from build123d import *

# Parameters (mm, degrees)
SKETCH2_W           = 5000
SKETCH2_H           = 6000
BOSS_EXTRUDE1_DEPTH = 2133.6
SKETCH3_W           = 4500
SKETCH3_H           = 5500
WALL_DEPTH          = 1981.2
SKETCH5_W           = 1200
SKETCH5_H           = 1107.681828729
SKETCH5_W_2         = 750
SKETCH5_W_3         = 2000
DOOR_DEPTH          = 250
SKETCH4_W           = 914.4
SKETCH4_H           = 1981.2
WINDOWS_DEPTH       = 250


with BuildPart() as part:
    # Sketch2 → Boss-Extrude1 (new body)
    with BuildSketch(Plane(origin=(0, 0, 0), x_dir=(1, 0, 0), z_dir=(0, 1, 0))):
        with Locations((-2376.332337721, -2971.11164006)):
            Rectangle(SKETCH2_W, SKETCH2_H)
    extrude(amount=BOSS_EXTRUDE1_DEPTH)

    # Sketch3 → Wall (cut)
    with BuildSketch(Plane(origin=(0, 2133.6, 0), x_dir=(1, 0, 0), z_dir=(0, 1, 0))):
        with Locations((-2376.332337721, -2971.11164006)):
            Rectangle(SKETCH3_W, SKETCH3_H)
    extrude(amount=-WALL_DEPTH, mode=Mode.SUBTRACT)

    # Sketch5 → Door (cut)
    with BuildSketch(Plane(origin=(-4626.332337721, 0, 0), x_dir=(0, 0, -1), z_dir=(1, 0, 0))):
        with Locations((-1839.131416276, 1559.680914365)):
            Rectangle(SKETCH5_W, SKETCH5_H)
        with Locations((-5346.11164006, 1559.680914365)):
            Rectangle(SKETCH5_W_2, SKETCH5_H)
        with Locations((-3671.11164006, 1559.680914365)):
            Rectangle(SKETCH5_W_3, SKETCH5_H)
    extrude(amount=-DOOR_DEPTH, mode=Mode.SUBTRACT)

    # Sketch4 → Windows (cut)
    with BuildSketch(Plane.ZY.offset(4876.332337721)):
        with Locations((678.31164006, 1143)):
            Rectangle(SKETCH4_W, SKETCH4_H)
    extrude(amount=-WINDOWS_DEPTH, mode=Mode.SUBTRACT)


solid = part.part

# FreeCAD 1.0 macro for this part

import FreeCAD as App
import Part
import Sketcher
from FreeCAD import Vector
Q = App.Units.Quantity


def add_polygon(sketch, points):
    """Adds a closed chain of lines whose ends are joined by coincident constraints."""
    first, n = sketch.GeometryCount, len(points)
    for a, b in zip(points, points[1:] + points[:1]):
        sketch.addGeometry(Part.LineSegment(App.Vector(*a, 0), App.Vector(*b, 0)), False)
    for i in range(n):
        sketch.addConstraint(Sketcher.Constraint("Coincident", first + i, 2, first + (i + 1) % n, 1))

doc = App.newDocument("Part")
body = doc.addObject("PartDesign::Body", "Body")

sketch1 = doc.addObject("Sketcher::SketchObject", "Sketch")
body.addObject(sketch1)
sketch1.AttachmentSupport = (doc.XZ_Plane, [""])
sketch1.MapMode = "FlatFace"
add_polygon(sketch1, [(-4876, -29), (-4876, 5971), (124, 5971), (124, -29)])
sketch1.addConstraint([
    Sketcher.Constraint("Vertical", 0),
    Sketcher.Constraint("Horizontal", 1),
    Sketcher.Constraint("Vertical", 2),
    Sketcher.Constraint("Horizontal", 3),
    Sketcher.Constraint("DistanceX", 1, 1, 1, 2, Q("5000 mm")),
    Sketcher.Constraint("DistanceY", 0, 1, 0, 2, Q("6000 mm")),
    Sketcher.Constraint("DistanceY", -1, 1, 0, 2, Q("5971.11164 mm")),
    Sketcher.Constraint("DistanceX", 0, 2, -1, 1, Q("4876.332338 mm")),
])
pad1 = doc.addObject("PartDesign::Pad", "Pad")
body.addObject(pad1)
pad1.Profile = sketch1
pad1.Length = 2133.6
pad1.Reversed = True

sketch2 = doc.addObject("Sketcher::SketchObject", "Sketch001")
body.addObject(sketch2)
sketch2.AttachmentSupport = (doc.XZ_Plane, [""])
sketch2.MapMode = "FlatFace"
sketch2.AttachmentOffset = App.Placement(Vector(0, 0, -2133.6), App.Rotation())
add_polygon(sketch2, [(-4626, 221), (-4626, 5721), (-126, 5721), (-126, 221)])
sketch2.addConstraint([
    Sketcher.Constraint("Vertical", 0),
    Sketcher.Constraint("Horizontal", 1),
    Sketcher.Constraint("Vertical", 2),
    Sketcher.Constraint("Horizontal", 3),
    Sketcher.Constraint("DistanceX", 1, 1, 1, 2, Q("4500 mm")),
    Sketcher.Constraint("DistanceY", 0, 1, 0, 2, Q("5500 mm")),
    Sketcher.Constraint("DistanceY", -1, 1, 0, 2, Q("5721.11164 mm")),
    Sketcher.Constraint("DistanceX", 0, 2, -1, 1, Q("4626.332338 mm")),
])
pocket1 = doc.addObject("PartDesign::Pocket", "Pocket")
body.addObject(pocket1)
pocket1.Profile = sketch2
pocket1.Length = 1981.2
pocket1.Reversed = True

sketch3 = doc.addObject("Sketcher::SketchObject", "Sketch002")
body.addObject(sketch3)
sketch3.AttachmentSupport = (doc.YZ_Plane, [""])
sketch3.MapMode = "FlatFace"
sketch3.AttachmentOffset = App.Placement(Vector(0, 0, -4626.332338), App.Rotation())
add_polygon(sketch3, [(2114, 2439), (1006, 2439), (1006, 1239), (2114, 1239)])
add_polygon(sketch3, [(2114, 5721), (1006, 5721), (1006, 4971), (2114, 4971)])
add_polygon(sketch3, [(2114, 4671), (1006, 4671), (1006, 2671), (2114, 2671)])
sketch3.addConstraint([
    Sketcher.Constraint("Horizontal", 0),
    Sketcher.Constraint("Vertical", 1),
    Sketcher.Constraint("Horizontal", 2),
    Sketcher.Constraint("Vertical", 3),
    Sketcher.Constraint("Horizontal", 4),
    Sketcher.Constraint("Vertical", 5),
    Sketcher.Constraint("Horizontal", 6),
    Sketcher.Constraint("Vertical", 7),
    Sketcher.Constraint("Horizontal", 8),
    Sketcher.Constraint("Vertical", 9),
    Sketcher.Constraint("Horizontal", 10),
    Sketcher.Constraint("Vertical", 11),
    Sketcher.Constraint("Vertical", 1, 2, 4, 2),
    Sketcher.Constraint("Vertical", 3, 2, 6, 2),
    Sketcher.Constraint("Vertical", 5, 2, 8, 2),
    Sketcher.Constraint("Vertical", 7, 2, 10, 2),
    Sketcher.Constraint("DistanceY", 1, 2, 1, 1, Q("1200 mm")),
    Sketcher.Constraint("DistanceY", 5, 2, 5, 1, Q("750 mm")),
    Sketcher.Constraint("DistanceY", 9, 2, 9, 1, Q("2000 mm")),
    Sketcher.Constraint("DistanceY", 8, 2, 5, 2, Q("300 mm")),
    Sketcher.Constraint("DistanceX", -1, 1, 0, 2, Q("1005.84 mm")),
    Sketcher.Constraint("DistanceX", 0, 2, 0, 1, Q("1107.681829 mm")),
    Sketcher.Constraint("DistanceY", -1, 1, 4, 2, Q("5721.11164 mm")),
    Sketcher.Constraint("DistanceY", -1, 1, 0, 2, Q("2439.131416 mm")),
])
pocket2 = doc.addObject("PartDesign::Pocket", "Pocket001")
body.addObject(pocket2)
pocket2.Profile = sketch3
pocket2.Length = 250

sketch4 = doc.addObject("Sketcher::SketchObject", "Sketch003")
body.addObject(sketch4)
sketch4.AttachmentSupport = (doc.YZ_Plane, [""])
sketch4.MapMode = "FlatFace"
sketch4.AttachmentOffset = App.Placement(Vector(0, 0, -4876.332338), App.Rotation())
add_polygon(sketch4, [(2134, 221), (152, 221), (152, 1136), (2134, 1136)])
sketch4.addConstraint([
    Sketcher.Constraint("Horizontal", 0),
    Sketcher.Constraint("Vertical", 1),
    Sketcher.Constraint("Horizontal", 2),
    Sketcher.Constraint("Vertical", 3),
    Sketcher.Constraint("DistanceX", 0, 2, 0, 1, Q("1981.2 mm")),
    Sketcher.Constraint("DistanceY", 1, 1, 1, 2, Q("914.4 mm")),
    Sketcher.Constraint("DistanceX", -1, 1, 0, 2, Q("152.4 mm")),
    Sketcher.Constraint("DistanceY", -1, 1, 0, 2, Q("221.11164 mm")),
])
pocket3 = doc.addObject("PartDesign::Pocket", "Pocket002")
body.addObject(pocket3)
pocket3.Profile = sketch4
pocket3.Length = 250
pocket3.Reversed = True

doc.recompute()
